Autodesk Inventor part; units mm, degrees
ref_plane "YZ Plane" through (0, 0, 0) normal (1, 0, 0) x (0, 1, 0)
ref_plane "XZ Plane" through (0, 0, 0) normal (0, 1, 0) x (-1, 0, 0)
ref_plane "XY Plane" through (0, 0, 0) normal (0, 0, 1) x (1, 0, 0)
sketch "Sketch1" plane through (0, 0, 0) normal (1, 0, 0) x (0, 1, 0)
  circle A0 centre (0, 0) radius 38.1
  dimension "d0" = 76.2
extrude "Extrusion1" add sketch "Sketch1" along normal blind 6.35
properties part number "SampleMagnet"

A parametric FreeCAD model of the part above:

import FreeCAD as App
import Part
import Sketcher

V = App.Vector
Q = App.Units.Quantity

doc = App.newDocument("Part")
body = doc.addObject("PartDesign::Body", "Body")

# Sketch on YZ plane
sketch1 = body.newObject("Sketcher::SketchObject", "Sketch")
sketch1.AttachmentSupport = (doc.getObject("YZ_Plane"), [""])
sketch1.MapMode = "FlatFace"
sketch1.addGeometry(Part.Circle(V(0, 0, 0), V(0, 0, 1), 38), False)
sketch1.addConstraint([
    Sketcher.Constraint("Coincident", 0, 3, -1, 1),
    Sketcher.Constraint("Diameter", 0, Q("3 in")),
])
pad1 = body.newObject("PartDesign::Pad", "Pad")
pad1.Profile = sketch1
pad1.Length = Q("0.25 in")

doc.recompute()
